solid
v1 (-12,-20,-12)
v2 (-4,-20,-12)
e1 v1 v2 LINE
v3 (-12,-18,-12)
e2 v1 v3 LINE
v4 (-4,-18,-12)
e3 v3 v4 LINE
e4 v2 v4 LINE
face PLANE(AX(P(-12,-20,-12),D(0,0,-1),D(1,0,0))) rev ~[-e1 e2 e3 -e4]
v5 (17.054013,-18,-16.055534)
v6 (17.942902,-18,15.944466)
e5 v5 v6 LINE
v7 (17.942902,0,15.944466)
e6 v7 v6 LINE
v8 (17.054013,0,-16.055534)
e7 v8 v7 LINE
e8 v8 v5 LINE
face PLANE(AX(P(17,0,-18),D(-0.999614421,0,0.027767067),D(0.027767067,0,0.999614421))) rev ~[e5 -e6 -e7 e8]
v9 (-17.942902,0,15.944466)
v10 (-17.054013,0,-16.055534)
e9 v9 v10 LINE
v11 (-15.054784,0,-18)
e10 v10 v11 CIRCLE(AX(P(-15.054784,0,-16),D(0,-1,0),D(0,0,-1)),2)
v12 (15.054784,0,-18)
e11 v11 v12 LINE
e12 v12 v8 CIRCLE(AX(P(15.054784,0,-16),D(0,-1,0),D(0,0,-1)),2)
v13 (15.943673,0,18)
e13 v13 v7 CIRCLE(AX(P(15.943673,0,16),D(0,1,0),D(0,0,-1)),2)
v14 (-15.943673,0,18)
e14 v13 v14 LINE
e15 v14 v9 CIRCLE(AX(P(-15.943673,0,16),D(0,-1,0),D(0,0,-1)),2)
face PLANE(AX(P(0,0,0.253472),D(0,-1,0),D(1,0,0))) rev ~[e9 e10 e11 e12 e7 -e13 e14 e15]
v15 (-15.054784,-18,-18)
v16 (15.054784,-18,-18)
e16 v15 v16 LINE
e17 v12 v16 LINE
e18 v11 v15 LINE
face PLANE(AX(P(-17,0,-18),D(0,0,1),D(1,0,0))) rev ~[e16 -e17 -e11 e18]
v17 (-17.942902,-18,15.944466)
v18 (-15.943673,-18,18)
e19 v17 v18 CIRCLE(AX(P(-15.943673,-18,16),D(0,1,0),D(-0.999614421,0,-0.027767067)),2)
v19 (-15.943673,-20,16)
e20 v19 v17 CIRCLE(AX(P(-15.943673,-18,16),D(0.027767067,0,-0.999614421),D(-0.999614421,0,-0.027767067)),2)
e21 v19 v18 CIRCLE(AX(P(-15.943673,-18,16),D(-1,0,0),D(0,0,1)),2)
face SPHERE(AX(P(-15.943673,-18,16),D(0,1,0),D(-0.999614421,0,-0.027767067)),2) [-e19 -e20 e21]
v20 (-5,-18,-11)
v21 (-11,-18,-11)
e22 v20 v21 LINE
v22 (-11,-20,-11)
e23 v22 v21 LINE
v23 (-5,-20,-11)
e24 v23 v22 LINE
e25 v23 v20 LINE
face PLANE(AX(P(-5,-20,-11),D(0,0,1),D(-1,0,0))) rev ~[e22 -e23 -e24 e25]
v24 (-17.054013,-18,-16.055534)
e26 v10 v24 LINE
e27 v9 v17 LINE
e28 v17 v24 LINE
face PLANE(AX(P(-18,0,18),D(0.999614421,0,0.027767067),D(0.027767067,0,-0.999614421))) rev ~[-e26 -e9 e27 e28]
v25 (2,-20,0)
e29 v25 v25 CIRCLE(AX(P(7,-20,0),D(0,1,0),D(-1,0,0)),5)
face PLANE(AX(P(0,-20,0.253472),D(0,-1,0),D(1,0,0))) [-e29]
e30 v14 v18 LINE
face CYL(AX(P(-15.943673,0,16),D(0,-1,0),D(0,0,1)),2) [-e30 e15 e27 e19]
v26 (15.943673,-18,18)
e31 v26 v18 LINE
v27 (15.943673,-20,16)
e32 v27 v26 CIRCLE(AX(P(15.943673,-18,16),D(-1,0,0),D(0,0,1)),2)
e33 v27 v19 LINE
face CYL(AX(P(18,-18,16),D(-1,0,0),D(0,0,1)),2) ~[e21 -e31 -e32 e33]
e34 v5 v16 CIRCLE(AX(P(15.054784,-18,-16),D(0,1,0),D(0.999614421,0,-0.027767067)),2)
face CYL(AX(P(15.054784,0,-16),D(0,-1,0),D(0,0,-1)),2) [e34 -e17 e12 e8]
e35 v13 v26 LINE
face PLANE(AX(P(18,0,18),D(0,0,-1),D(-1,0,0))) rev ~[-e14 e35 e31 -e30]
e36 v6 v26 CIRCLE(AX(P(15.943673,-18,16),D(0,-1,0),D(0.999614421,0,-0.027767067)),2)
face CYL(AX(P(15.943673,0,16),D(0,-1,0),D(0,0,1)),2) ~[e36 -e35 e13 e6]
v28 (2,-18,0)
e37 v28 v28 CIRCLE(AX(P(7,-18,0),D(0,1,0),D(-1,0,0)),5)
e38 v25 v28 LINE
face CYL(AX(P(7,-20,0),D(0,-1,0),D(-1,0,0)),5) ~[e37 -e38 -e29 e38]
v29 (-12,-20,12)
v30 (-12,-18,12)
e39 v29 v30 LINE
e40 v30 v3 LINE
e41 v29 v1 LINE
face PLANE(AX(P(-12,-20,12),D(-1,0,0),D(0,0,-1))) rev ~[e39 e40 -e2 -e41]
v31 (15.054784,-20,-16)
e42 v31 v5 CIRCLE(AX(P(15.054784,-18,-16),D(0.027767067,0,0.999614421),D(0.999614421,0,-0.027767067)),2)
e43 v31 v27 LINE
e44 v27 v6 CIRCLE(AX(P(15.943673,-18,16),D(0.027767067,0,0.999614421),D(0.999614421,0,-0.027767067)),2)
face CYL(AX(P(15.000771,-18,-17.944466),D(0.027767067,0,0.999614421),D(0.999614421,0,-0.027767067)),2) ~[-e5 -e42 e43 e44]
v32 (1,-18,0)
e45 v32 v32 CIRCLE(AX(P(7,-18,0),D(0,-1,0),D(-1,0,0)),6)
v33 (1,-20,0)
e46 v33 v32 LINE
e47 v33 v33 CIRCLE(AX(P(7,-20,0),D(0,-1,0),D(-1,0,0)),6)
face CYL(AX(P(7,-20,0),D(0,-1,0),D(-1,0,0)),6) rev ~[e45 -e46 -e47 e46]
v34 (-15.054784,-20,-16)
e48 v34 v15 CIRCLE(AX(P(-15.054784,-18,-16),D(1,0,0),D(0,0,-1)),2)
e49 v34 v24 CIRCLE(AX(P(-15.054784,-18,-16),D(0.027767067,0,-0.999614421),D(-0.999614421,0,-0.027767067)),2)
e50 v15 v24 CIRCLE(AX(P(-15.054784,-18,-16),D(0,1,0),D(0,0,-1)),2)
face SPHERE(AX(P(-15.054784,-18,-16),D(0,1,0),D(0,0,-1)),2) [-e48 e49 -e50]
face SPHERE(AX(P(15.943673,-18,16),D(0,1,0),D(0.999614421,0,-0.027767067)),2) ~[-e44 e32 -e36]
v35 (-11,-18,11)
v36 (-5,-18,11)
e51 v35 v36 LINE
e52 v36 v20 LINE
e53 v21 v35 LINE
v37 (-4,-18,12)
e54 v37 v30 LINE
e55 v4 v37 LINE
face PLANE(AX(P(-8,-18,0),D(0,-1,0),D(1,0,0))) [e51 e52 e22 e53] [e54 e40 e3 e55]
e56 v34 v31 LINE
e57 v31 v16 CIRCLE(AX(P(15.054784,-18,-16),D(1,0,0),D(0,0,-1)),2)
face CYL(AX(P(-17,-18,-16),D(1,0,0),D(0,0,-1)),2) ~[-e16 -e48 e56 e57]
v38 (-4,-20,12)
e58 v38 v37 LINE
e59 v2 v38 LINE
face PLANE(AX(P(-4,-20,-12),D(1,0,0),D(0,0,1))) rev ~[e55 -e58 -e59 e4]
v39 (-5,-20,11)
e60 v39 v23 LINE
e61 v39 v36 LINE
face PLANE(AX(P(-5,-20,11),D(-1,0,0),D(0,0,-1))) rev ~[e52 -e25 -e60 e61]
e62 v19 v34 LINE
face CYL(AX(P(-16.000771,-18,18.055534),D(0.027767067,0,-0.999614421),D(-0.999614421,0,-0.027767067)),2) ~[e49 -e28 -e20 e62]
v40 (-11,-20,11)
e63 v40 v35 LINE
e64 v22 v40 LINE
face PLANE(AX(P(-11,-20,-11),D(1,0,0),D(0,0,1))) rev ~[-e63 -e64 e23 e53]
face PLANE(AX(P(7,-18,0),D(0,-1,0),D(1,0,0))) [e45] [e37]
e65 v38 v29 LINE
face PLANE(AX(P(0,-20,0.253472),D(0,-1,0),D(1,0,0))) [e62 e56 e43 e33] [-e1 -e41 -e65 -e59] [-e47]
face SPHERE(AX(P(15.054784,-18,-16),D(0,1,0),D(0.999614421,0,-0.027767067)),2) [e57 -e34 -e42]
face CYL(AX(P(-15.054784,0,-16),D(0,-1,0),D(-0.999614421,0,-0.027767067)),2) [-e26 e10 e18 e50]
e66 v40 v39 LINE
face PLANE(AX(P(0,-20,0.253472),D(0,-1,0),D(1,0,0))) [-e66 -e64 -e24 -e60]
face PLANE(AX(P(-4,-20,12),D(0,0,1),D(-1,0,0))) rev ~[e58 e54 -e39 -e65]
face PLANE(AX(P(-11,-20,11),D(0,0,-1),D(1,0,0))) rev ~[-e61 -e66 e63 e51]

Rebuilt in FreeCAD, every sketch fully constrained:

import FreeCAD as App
import Part
import Sketcher
Q = App.Units.Quantity


def edges_at(feature, points):
    """Names of the edges that pass closest to the given points."""
    edges = feature.Shape.Edges
    near = lambda p: min(range(len(edges)), key=lambda i: edges[i].distToShape(Part.Vertex(*p))[0])
    return sorted({f"Edge{near(p) + 1}" for p in points})


def add_polygon(sketch, points):
    """Adds a closed chain of lines whose ends are joined by coincident constraints."""
    first, n = sketch.GeometryCount, len(points)
    for a, b in zip(points, points[1:] + points[:1]):
        sketch.addGeometry(Part.LineSegment(App.Vector(*a, 0), App.Vector(*b, 0)), False)
    for i in range(n):
        sketch.addConstraint(Sketcher.Constraint("Coincident", first + i, 2, first + (i + 1) % n, 1))

doc = App.newDocument("Part")
params = doc.addObject("Spreadsheet::Sheet", "Params")
for row, (alias, value) in enumerate([
    ("sketch1_width", "36 mm"),
    ("sketch1_width2", "34 mm"),
    ("pad1_length", "20 mm"),
    ("fillet_radius", "2 mm"),
    ("sketch2_diameter", "12 mm"),
    ("sketch2_diameter2", "10 mm"),
    ("sketch2_width", "8 mm"),
    ("sketch2_width2", "6 mm"),
    ("sketch2_height", "24 mm"),
    ("pocket1_length", "2 mm"),
], start=1):
    params.set(f"A{row}", alias)
    params.set(f"B{row}", "=" + value)
    params.setAlias(f"B{row}", alias)

body = doc.addObject("PartDesign::Body", "Body")

# Sketch on XZ plane
sketch1 = body.newObject("Sketcher::SketchObject", "Sketch")
sketch1.AttachmentSupport = (doc.getObject("XZ_Plane"), [""])
sketch1.MapMode = "FlatFace"
add_polygon(sketch1, [(18, 18), (-18, 18), (-17, -18), (17, -18)])  # lines 0-3
sketch1.addConstraint(Sketcher.Constraint("Horizontal", 0))
sketch1.addConstraint(Sketcher.Constraint("Horizontal", 2))
sketch1.addConstraint(Sketcher.Constraint("Equal", 1, 3))
sketch1.addConstraint(Sketcher.Constraint("DistanceX", 0, 2, 0, 1, Q("36 mm")))
sketch1.addConstraint(Sketcher.Constraint("DistanceX", 2, 1, 2, 2, Q("34 mm")))
sketch1.addConstraint(Sketcher.Constraint("DistanceX", 0, 2, -1, 1, Q("18 mm")))
sketch1.addConstraint(Sketcher.Constraint("DistanceY", -1, 1, 0, 2, Q("18 mm")))
sketch1.addConstraint(Sketcher.Constraint("DistanceY", 1, 2, -1, 1, Q("18 mm")))
sketch1.setExpression("Constraints[7]", "Params.sketch1_width")
sketch1.setExpression("Constraints[8]", "Params.sketch1_width2")
pad1 = body.newObject("PartDesign::Pad", "Pad")
pad1.Profile = sketch1
pad1.setExpression("Length", "Params.pad1_length")
doc.recompute()

fillet = body.newObject("PartDesign::Fillet", "Fillet")
fillet.Base = (pad1, edges_at(pad1, [
    (-17, -10, -18),
    (-18, -10, 18),
    (18, -10, 18),
    (17, -10, -18),
    (17.5, -20, 0),
    (0, -20, -18),
    (-17.5, -20, 0),
    (0, -20, 18),
]))
fillet.setExpression("Radius", "Params.fillet_radius")

# Sketch on XZ plane
sketch2 = body.newObject("Sketcher::SketchObject", "Sketch001")
sketch2.AttachmentSupport = (doc.getObject("XZ_Plane"), [""])
sketch2.MapMode = "FlatFace"
sketch2.AttachmentOffset = App.Placement(App.Vector(0, 0, 20), App.Rotation())
add_polygon(sketch2, [(-4, -12), (-4, 12), (-12, 12), (-12, -12)])  # lines 0-3
add_polygon(sketch2, [(-11, 11), (-5, 11), (-5, -11), (-11, -11)])  # lines 4-7
sketch2.addGeometry(Part.Circle(App.Vector(7, 0, 0), App.Vector(0, 0, 1), 6), False)  # 8
sketch2.addGeometry(Part.Circle(App.Vector(7, 0, 0), App.Vector(0, 0, 1), 5), False)  # 9
sketch2.addConstraint(Sketcher.Constraint("Vertical", 0))
sketch2.addConstraint(Sketcher.Constraint("Horizontal", 1))
sketch2.addConstraint(Sketcher.Constraint("Vertical", 2))
sketch2.addConstraint(Sketcher.Constraint("Horizontal", 3))
sketch2.addConstraint(Sketcher.Constraint("Horizontal", 4))
sketch2.addConstraint(Sketcher.Constraint("Vertical", 5))
sketch2.addConstraint(Sketcher.Constraint("Horizontal", 6))
sketch2.addConstraint(Sketcher.Constraint("Vertical", 7))
sketch2.addConstraint(Sketcher.Constraint("Coincident", 9, 3, 8, 3))
sketch2.addConstraint(Sketcher.Constraint("PointOnObject", 8, 3, -1))
sketch2.addConstraint(Sketcher.Constraint("Diameter", 8, Q("12 mm")))
sketch2.addConstraint(Sketcher.Constraint("Diameter", 9, Q("10 mm")))
sketch2.addConstraint(Sketcher.Constraint("DistanceX", 1, 2, 1, 1, Q("8 mm")))
sketch2.addConstraint(Sketcher.Constraint("DistanceX", 4, 1, 4, 2, Q("6 mm")))
sketch2.addConstraint(Sketcher.Constraint("DistanceY", 0, 1, 0, 2, Q("24 mm")))
sketch2.addConstraint(Sketcher.Constraint("DistanceY", 5, 2, 5, 1, Q("22 mm")))
sketch2.addConstraint(Sketcher.Constraint("DistanceX", -1, 1, 8, 3, Q("7 mm")))
sketch2.addConstraint(Sketcher.Constraint("DistanceX", 0, 2, -1, 1, Q("4 mm")))
sketch2.addConstraint(Sketcher.Constraint("DistanceY", -1, 1, 0, 2, Q("12 mm")))
sketch2.addConstraint(Sketcher.Constraint("DistanceX", 4, 2, -1, 1, Q("5 mm")))
sketch2.addConstraint(Sketcher.Constraint("DistanceY", -1, 1, 4, 2, Q("11 mm")))
sketch2.setExpression("Constraints[18]", "Params.sketch2_diameter")
sketch2.setExpression("Constraints[19]", "Params.sketch2_diameter2")
sketch2.setExpression("Constraints[20]", "Params.sketch2_width")
sketch2.setExpression("Constraints[21]", "Params.sketch2_width2")
sketch2.setExpression("Constraints[22]", "Params.sketch2_height")
pocket1 = body.newObject("PartDesign::Pocket", "Pocket")
pocket1.Profile = sketch2
pocket1.setExpression("Length", "Params.pocket1_length")

doc.recompute()
